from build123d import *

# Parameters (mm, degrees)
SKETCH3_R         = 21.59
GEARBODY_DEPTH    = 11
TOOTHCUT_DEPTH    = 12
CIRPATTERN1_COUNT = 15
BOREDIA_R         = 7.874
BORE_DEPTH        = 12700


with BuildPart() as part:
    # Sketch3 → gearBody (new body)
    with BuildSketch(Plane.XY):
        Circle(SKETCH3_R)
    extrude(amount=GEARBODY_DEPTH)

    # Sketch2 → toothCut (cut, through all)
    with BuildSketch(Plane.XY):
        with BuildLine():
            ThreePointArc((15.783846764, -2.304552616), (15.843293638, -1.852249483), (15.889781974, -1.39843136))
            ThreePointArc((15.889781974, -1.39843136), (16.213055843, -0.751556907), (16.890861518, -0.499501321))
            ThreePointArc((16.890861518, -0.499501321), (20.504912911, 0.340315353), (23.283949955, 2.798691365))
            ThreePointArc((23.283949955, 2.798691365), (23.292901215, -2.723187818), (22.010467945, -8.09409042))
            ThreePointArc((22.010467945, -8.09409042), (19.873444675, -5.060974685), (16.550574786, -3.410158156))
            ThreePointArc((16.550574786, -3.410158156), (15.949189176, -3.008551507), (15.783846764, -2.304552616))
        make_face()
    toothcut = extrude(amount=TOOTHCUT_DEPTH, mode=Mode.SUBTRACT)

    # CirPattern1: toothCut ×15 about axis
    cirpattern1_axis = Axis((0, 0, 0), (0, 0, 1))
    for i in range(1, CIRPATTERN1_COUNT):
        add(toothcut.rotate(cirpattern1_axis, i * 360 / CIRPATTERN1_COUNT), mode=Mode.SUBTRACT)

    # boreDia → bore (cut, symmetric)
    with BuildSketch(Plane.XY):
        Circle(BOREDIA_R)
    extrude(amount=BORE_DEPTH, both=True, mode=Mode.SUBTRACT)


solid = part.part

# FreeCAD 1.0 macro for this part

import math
import FreeCAD as App
import Part
import Sketcher
Q = App.Units.Quantity

doc = App.newDocument("Part")
body = doc.addObject("PartDesign::Body", "Body")

# Sketch on XY plane
sketch1 = body.newObject("Sketcher::SketchObject", "Sketch")
sketch1.AttachmentSupport = (doc.getObject("XY_Plane"), [""])
sketch1.MapMode = "FlatFace"
sketch1.addGeometry(Part.Circle(App.Vector(0, 0, 0), App.Vector(0, 0, 1), 21.59), False)
sketch1.addConstraint(Sketcher.Constraint("Coincident", 0, 3, -1, 1))
sketch1.addConstraint(Sketcher.Constraint("Diameter", 0, Q("1.7 in")))
pad1 = body.newObject("PartDesign::Pad", "Pad")
pad1.Profile = sketch1
pad1.Length = 11

# Sketch on XY plane
sketch2 = body.newObject("Sketcher::SketchObject", "Sketch001")
sketch2.AttachmentSupport = (doc.getObject("XY_Plane"), [""])
sketch2.MapMode = "FlatFace"
sketch2.addGeometry(Part.ArcOfCircle(Part.Circle(App.Vector(0.000001, 0, 0), App.Vector(0, 0, 1), 15.951199), math.radians(-8.30689), math.radians(-5.029541)), False)
sketch2.addGeometry(Part.ArcOfCircle(Part.Circle(App.Vector(16.759027, -2.446936, 0), App.Vector(0, 0, 1), 0.98552), math.radians(171.69311), math.radians(257.788847)), False)
sketch2.addGeometry(Part.ArcOfCircle(Part.Circle(App.Vector(14.95176, -10.798008, 0), App.Vector(0, 0, 1), 7.558871), math.radians(20.959898), math.radians(77.788847)), False)
sketch2.addGeometry(Part.ArcOfCircle(Part.Circle(App.Vector(0, 0, 0), App.Vector(0, 0, 1), 23.451546), math.radians(-20.190404), math.radians(6.853974)), False)
sketch2.addGeometry(Part.ArcOfCircle(Part.Circle(App.Vector(17.039307, 7.057912, 0), App.Vector(0, 0, 1), 7.558871), math.radians(-91.125277), math.radians(-34.296328)), False)
sketch2.addGeometry(Part.ArcOfCircle(Part.Circle(App.Vector(16.871507, -1.484831, 0), App.Vector(0, 0, 1), 0.98552), math.radians(88.874723), math.radians(174.970459)), False)
sketch2.addConstraint(Sketcher.Constraint("Tangent", 0, 1, 1, 1))
sketch2.addConstraint(Sketcher.Constraint("Tangent", 1, 2, 2, 2))
sketch2.addConstraint(Sketcher.Constraint("Coincident", 2, 1, 3, 1))
sketch2.addConstraint(Sketcher.Constraint("Coincident", 3, 2, 4, 2))
sketch2.addConstraint(Sketcher.Constraint("Tangent", 4, 1, 5, 1))
sketch2.addConstraint(Sketcher.Constraint("Tangent", 5, 2, 0, 2))
sketch2.addConstraint(Sketcher.Constraint("Coincident", 0, 3, -1, 1))
sketch2.addConstraint(Sketcher.Constraint("Coincident", 3, 3, -1, 1))
sketch2.addConstraint(Sketcher.Constraint("Equal", 2, 4))
sketch2.addConstraint(Sketcher.Constraint("Equal", 1, 5))
sketch2.addConstraint(Sketcher.Constraint("Radius", 0, Q("0.628 in")))
sketch2.addConstraint(Sketcher.Constraint("Radius", 1, Q("0.0388 in")))
sketch2.addConstraint(Sketcher.Constraint("Radius", 2, Q("7.558871 mm")))
sketch2.addConstraint(Sketcher.Constraint("Radius", 3, Q("23.451546 mm")))
sketch2.addConstraint(Sketcher.Constraint("DistanceY", 4, 1, -1, 1, Q("0.499501 mm")))
sketch2.addConstraint(Sketcher.Constraint("DistanceX", 5, 3, 4, 3, Q("0.167799 mm")))
sketch2.addConstraint(Sketcher.Constraint("DistanceX", -1, 1, 2, 3, Q("14.95176 mm")))
sketch2.addConstraint(Sketcher.Constraint("DistanceY", 1, 2, -1, 1, Q("3.410158 mm")))
pocket1 = body.newObject("PartDesign::Pocket", "Pocket")
pocket1.Profile = sketch2
pocket1.Type = "ThroughAll"
pocket1.Reversed = True
doc.recompute()

polarpattern = body.newObject("PartDesign::PolarPattern", "PolarPattern")
polarpattern.Originals = [pocket1]
polarpattern.Axis = (doc.getObject("Z_Axis"), [""])
polarpattern.Angle = 360
polarpattern.Occurrences = 15
body.Tip = polarpattern

# Sketch on XY plane
sketch3 = body.newObject("Sketcher::SketchObject", "Sketch002")
sketch3.AttachmentSupport = (doc.getObject("XY_Plane"), [""])
sketch3.MapMode = "FlatFace"
sketch3.addGeometry(Part.Circle(App.Vector(0, 0, 0), App.Vector(0, 0, 1), 7.874), False)
sketch3.addConstraint(Sketcher.Constraint("Coincident", 0, 3, -1, 1))
sketch3.addConstraint(Sketcher.Constraint("Diameter", 0, Q("0.62 in")))
pocket2 = body.newObject("PartDesign::Pocket", "Pocket001")
pocket2.Profile = sketch3
pocket2.Length = Q("1000 in")
pocket2.Midplane = True

doc.recompute()
